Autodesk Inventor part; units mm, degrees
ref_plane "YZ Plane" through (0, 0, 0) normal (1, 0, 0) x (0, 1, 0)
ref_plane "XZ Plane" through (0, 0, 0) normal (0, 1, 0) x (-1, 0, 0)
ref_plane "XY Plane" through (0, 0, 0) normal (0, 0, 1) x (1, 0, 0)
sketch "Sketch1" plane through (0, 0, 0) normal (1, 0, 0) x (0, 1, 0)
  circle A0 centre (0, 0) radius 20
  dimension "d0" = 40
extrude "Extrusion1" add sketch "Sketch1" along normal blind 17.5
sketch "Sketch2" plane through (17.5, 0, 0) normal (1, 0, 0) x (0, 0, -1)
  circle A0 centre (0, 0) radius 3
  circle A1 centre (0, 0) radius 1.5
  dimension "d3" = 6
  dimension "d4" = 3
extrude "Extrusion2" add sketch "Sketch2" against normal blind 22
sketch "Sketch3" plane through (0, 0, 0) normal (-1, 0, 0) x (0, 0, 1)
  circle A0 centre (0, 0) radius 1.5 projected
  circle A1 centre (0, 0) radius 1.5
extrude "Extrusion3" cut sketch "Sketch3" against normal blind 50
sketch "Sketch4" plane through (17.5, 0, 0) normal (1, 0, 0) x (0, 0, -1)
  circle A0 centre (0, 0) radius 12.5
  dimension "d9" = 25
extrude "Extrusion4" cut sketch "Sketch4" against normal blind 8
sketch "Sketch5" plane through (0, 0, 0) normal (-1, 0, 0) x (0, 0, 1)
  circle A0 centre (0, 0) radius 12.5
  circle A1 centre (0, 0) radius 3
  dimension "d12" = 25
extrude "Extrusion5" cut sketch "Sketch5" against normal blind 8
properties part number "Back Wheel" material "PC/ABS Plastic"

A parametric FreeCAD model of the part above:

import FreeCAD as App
import Part
import Sketcher
from FreeCAD import Vector

doc = App.newDocument("Part")
params = doc.addObject("Spreadsheet::Sheet", "Params")
for row, (alias, value) in enumerate([
    ("sketch1_diameter", "40 mm"),
    ("pad1_length", "17.5 mm"),
    ("sketch2_diameter", "6 mm"),
    ("sketch2_diameter2", "3 mm"),
    ("pad2_length", "22 mm"),
    ("sketch3_diameter", "3 mm"),
    ("pocket1_length", "50 mm"),
    ("sketch4_diameter", "25 mm"),
    ("pocket2_length", "8 mm"),
    ("sketch5_diameter", "25 mm"),
    ("sketch5_diameter2", "6 mm"),
    ("pocket3_length", "8 mm"),
], start=1):
    params.set(f"A{row}", alias)
    params.set(f"B{row}", "=" + value)
    params.setAlias(f"B{row}", alias)

body = doc.addObject("PartDesign::Body", "Body")

# Sketch on YZ plane
sketch1 = body.newObject("Sketcher::SketchObject", "Sketch")
sketch1.AttachmentSupport = (doc.getObject("YZ_Plane"), [""])
sketch1.MapMode = "FlatFace"
sketch1.addGeometry(Part.Circle(Vector(0, 0, 0), Vector(0, 0, 1), 20), False)
sketch1.addConstraint([
    Sketcher.Constraint("Coincident", 0, 3, -1, 1),
    Sketcher.Constraint("Diameter", 0, 40.0),
])
sketch1.setExpression("Constraints[1]", "Params.sketch1_diameter")
pad1 = body.newObject("PartDesign::Pad", "Pad")
pad1.Profile = sketch1
pad1.setExpression("Length", "Params.pad1_length")

# Sketch on YZ plane
sketch2 = body.newObject("Sketcher::SketchObject", "Sketch001")
sketch2.AttachmentSupport = (doc.getObject("YZ_Plane"), [""])
sketch2.MapMode = "FlatFace"
sketch2.AttachmentOffset = App.Placement(Vector(0, 0, 17.5), App.Rotation())
sketch2.addGeometry([
    Part.Circle(Vector(0, 0, 0), Vector(0, 0, 1), 3),
    Part.Circle(Vector(0, 0, 0), Vector(0, 0, 1), 1.5),
], False)
sketch2.addConstraint([
    Sketcher.Constraint("Coincident", 0, 3, -1, 1),
    Sketcher.Constraint("Coincident", 1, 3, -1, 1),
    Sketcher.Constraint("Diameter", 0, 6.0),
    Sketcher.Constraint("Diameter", 1, 3.0),
])
sketch2.setExpression("Constraints[2]", "Params.sketch2_diameter")
sketch2.setExpression("Constraints[3]", "Params.sketch2_diameter2")
pad2 = body.newObject("PartDesign::Pad", "Pad001")
pad2.Profile = sketch2
pad2.setExpression("Length", "Params.pad2_length")
pad2.Reversed = True

# Sketch on YZ plane
sketch3 = body.newObject("Sketcher::SketchObject", "Sketch002")
sketch3.AttachmentSupport = (doc.getObject("YZ_Plane"), [""])
sketch3.MapMode = "FlatFace"
sketch3.addGeometry(Part.Circle(Vector(0, 0, 0), Vector(0, 0, 1), 1.5), False)
sketch3.addConstraint([
    Sketcher.Constraint("Coincident", 0, 3, -1, 1),
    Sketcher.Constraint("Diameter", 0, 3.0),
])
sketch3.setExpression("Constraints[1]", "Params.sketch3_diameter")
pocket1 = body.newObject("PartDesign::Pocket", "Pocket")
pocket1.Profile = sketch3
pocket1.setExpression("Length", "Params.pocket1_length")
pocket1.Reversed = True

# Sketch on YZ plane
sketch4 = body.newObject("Sketcher::SketchObject", "Sketch003")
sketch4.AttachmentSupport = (doc.getObject("YZ_Plane"), [""])
sketch4.MapMode = "FlatFace"
sketch4.AttachmentOffset = App.Placement(Vector(0, 0, 17.5), App.Rotation())
sketch4.addGeometry(Part.Circle(Vector(0, 0, 0), Vector(0, 0, 1), 12), False)
sketch4.addConstraint([
    Sketcher.Constraint("Coincident", 0, 3, -1, 1),
    Sketcher.Constraint("Diameter", 0, 25.0),
])
sketch4.setExpression("Constraints[1]", "Params.sketch4_diameter")
pocket2 = body.newObject("PartDesign::Pocket", "Pocket001")
pocket2.Profile = sketch4
pocket2.setExpression("Length", "Params.pocket2_length")

# Sketch on YZ plane
sketch5 = body.newObject("Sketcher::SketchObject", "Sketch004")
sketch5.AttachmentSupport = (doc.getObject("YZ_Plane"), [""])
sketch5.MapMode = "FlatFace"
sketch5.addGeometry([
    Part.Circle(Vector(0, 0, 0), Vector(0, 0, 1), 12.5),
    Part.Circle(Vector(0, 0, 0), Vector(0, 0, 1), 3),
], False)
sketch5.addConstraint([
    Sketcher.Constraint("Coincident", 0, 3, -1, 1),
    Sketcher.Constraint("Coincident", 1, 3, -1, 1),
    Sketcher.Constraint("Diameter", 0, 25.0),
    Sketcher.Constraint("Diameter", 1, 6.0),
])
sketch5.setExpression("Constraints[2]", "Params.sketch5_diameter")
sketch5.setExpression("Constraints[3]", "Params.sketch5_diameter2")
pocket3 = body.newObject("PartDesign::Pocket", "Pocket002")
pocket3.Profile = sketch5
pocket3.setExpression("Length", "Params.pocket3_length")
pocket3.Reversed = True

doc.recompute()
